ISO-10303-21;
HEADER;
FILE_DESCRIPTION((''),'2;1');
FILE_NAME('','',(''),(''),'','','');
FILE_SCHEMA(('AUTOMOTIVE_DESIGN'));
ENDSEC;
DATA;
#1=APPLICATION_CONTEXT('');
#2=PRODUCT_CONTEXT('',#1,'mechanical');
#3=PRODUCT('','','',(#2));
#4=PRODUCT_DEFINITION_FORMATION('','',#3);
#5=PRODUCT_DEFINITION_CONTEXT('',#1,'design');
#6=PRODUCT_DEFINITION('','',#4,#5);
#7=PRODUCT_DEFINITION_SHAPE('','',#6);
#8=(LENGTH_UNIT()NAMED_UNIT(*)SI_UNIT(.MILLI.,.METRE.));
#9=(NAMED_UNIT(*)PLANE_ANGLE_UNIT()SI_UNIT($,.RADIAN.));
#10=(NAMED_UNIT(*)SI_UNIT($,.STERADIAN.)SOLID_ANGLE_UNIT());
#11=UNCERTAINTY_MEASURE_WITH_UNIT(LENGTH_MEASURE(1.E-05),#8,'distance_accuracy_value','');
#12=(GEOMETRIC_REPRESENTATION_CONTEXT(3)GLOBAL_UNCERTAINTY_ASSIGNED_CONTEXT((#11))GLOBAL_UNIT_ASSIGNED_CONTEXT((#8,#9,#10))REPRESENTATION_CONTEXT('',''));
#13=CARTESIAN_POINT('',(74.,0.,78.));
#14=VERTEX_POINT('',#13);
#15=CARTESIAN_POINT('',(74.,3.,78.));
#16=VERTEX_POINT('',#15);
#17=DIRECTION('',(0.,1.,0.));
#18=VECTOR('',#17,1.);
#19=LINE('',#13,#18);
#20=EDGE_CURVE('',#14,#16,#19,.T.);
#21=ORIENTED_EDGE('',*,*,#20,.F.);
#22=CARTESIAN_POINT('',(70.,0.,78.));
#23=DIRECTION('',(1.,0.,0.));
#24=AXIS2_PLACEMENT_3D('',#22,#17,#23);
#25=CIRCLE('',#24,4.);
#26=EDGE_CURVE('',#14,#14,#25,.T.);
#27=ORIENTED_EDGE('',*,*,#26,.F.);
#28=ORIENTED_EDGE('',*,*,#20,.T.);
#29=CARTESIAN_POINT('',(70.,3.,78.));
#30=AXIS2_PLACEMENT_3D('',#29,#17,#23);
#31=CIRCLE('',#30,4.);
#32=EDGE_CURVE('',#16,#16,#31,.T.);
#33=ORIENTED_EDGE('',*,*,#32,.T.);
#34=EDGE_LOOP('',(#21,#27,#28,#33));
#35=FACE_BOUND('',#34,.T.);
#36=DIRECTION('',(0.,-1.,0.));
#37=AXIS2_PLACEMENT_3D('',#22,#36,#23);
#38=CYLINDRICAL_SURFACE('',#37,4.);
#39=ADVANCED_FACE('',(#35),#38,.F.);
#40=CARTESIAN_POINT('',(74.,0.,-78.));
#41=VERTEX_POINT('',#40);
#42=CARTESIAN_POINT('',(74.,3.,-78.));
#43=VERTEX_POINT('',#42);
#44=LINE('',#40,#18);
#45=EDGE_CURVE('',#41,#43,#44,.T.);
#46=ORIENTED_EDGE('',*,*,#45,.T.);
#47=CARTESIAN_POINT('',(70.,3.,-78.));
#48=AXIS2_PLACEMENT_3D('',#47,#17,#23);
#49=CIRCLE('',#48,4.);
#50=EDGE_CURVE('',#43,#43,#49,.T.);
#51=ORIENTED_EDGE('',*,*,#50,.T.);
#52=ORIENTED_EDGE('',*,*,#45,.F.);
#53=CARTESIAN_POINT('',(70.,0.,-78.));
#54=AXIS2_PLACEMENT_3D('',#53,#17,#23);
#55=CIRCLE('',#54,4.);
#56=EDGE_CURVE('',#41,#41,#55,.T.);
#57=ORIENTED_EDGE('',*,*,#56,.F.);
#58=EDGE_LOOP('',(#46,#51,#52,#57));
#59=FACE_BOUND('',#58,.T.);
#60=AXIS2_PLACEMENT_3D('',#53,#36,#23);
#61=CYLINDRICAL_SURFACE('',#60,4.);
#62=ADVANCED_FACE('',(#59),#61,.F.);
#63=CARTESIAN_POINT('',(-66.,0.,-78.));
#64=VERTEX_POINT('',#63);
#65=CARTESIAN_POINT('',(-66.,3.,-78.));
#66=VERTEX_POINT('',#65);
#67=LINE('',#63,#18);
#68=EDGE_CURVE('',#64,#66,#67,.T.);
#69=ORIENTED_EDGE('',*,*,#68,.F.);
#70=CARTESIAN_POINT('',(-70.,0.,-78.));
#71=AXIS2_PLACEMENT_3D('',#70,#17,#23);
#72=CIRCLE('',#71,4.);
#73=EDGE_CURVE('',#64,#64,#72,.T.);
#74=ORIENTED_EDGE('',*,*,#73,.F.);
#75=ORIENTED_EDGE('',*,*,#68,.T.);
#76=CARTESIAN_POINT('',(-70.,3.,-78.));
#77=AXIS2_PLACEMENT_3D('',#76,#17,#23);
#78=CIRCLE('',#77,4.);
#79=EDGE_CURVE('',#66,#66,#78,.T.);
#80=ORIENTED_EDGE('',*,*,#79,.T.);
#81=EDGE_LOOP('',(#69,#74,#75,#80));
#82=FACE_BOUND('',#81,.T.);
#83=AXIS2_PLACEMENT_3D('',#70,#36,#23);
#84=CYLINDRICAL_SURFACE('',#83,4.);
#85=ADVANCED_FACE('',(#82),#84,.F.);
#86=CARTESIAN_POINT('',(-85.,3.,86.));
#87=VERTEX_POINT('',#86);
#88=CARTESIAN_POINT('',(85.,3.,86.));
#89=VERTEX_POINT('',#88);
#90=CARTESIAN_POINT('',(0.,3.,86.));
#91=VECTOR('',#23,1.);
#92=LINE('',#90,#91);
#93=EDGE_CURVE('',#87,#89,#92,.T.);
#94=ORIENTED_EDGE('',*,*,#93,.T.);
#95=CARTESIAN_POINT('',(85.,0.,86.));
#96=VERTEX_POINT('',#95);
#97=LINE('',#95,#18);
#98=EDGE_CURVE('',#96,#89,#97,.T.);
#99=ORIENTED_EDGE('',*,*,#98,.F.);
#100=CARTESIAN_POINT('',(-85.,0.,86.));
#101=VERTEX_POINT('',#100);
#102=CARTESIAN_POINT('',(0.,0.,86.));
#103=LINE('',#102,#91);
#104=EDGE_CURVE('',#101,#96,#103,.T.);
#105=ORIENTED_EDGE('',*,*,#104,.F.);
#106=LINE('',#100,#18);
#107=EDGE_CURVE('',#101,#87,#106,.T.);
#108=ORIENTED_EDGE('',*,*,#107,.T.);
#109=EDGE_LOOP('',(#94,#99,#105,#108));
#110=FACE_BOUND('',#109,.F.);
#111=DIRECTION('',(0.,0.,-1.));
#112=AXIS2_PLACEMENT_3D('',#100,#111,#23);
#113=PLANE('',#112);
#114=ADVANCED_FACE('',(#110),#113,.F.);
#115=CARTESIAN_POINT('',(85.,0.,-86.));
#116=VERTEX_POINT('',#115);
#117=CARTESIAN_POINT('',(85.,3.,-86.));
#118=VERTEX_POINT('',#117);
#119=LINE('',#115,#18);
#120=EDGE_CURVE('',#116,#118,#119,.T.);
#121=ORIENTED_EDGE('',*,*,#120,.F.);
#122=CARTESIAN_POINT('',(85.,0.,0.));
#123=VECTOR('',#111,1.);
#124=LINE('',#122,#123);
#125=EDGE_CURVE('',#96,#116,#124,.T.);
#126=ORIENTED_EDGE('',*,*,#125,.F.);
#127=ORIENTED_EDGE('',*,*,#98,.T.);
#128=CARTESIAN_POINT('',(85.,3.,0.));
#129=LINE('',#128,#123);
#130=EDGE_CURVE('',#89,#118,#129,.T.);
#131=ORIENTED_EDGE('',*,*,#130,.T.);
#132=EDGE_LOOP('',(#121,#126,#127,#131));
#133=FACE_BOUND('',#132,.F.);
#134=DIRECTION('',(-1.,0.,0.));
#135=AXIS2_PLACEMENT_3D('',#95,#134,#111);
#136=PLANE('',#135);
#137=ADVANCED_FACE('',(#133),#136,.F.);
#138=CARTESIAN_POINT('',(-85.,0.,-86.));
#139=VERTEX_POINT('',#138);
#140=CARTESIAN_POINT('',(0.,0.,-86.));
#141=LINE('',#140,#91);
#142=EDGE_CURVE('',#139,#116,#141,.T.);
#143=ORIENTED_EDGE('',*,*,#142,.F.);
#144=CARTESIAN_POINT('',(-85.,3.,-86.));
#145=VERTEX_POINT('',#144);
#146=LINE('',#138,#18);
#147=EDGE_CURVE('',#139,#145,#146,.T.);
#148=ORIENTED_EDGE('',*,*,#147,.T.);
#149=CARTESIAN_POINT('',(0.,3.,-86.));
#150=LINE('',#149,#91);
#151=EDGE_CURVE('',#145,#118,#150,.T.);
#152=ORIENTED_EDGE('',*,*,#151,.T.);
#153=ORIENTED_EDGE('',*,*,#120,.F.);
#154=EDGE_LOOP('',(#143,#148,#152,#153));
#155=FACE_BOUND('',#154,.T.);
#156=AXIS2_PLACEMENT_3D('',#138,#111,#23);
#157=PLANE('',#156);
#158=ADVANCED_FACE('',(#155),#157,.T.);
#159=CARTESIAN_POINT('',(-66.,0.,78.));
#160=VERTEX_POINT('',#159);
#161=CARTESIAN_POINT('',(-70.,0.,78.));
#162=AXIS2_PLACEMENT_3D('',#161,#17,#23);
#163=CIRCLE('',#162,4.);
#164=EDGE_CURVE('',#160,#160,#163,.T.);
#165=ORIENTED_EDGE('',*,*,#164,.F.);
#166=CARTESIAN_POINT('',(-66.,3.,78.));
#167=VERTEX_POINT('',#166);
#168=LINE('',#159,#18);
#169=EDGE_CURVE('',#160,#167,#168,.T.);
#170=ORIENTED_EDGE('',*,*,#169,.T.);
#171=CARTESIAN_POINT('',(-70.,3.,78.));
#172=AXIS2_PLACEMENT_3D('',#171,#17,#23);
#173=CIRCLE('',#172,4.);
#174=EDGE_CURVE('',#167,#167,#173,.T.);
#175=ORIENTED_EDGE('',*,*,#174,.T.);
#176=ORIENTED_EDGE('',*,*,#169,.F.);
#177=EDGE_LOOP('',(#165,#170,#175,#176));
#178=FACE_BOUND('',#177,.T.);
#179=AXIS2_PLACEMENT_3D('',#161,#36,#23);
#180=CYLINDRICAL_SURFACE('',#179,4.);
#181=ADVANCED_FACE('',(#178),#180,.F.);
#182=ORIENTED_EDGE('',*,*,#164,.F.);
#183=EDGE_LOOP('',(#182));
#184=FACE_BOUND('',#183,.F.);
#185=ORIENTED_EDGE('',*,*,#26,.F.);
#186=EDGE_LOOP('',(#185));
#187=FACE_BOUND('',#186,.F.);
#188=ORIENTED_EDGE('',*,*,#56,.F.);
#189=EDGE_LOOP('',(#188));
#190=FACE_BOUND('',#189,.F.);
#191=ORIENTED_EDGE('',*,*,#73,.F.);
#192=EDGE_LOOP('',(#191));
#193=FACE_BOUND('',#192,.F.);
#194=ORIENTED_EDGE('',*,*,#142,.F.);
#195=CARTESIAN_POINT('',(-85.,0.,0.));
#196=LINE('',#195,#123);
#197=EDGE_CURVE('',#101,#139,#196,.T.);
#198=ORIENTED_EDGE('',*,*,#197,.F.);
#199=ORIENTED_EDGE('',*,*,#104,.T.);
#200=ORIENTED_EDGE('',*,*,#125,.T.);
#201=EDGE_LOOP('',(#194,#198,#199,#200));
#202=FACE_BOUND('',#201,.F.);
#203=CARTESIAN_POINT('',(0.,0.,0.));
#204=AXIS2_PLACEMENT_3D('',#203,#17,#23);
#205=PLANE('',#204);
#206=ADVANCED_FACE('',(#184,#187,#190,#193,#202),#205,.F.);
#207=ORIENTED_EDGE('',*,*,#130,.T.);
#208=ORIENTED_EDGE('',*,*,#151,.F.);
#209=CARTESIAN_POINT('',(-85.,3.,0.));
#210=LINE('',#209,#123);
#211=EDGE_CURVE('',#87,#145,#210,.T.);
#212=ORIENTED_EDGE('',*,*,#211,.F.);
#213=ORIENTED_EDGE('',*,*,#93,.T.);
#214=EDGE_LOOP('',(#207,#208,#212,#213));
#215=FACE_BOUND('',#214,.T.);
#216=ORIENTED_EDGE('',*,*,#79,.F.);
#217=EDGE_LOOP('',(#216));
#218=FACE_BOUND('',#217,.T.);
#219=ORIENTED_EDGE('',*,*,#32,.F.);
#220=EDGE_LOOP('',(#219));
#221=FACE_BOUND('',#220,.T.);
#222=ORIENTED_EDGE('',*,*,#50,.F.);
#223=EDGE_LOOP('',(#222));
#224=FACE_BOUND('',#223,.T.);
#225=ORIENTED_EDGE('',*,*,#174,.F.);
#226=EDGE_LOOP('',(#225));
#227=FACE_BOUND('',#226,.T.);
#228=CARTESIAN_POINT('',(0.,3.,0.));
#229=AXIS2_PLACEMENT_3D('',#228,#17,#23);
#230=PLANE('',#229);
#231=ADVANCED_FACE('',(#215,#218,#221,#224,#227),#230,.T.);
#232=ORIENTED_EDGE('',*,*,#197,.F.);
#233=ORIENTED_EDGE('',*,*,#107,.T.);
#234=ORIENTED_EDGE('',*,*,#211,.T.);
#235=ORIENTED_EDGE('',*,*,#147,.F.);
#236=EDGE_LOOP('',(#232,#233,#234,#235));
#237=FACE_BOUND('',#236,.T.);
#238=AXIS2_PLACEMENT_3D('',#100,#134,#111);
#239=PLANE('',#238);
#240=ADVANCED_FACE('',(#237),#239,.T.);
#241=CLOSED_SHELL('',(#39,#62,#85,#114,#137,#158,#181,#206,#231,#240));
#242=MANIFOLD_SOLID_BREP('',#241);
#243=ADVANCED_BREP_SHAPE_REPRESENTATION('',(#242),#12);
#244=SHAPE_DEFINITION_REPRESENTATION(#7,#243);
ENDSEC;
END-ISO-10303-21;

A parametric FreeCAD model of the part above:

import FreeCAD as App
import Part
import Sketcher

V = App.Vector
Q = App.Units.Quantity


def add_polygon(sketch, points):
    """Adds a closed chain of lines whose ends are joined by coincident constraints."""
    first, n = sketch.GeometryCount, len(points)
    for a, b in zip(points, points[1:] + points[:1]):
        sketch.addGeometry(Part.LineSegment(App.Vector(*a, 0), App.Vector(*b, 0)), False)
    for i in range(n):
        sketch.addConstraint(Sketcher.Constraint("Coincident", first + i, 2, first + (i + 1) % n, 1))

doc = App.newDocument("Part")
body = doc.addObject("PartDesign::Body", "Body")

sketch1 = body.newObject("Sketcher::SketchObject", "Sketch")
sketch1.AttachmentSupport = (doc.getObject("XZ_Plane"), [""])
sketch1.MapMode = "FlatFace"
add_polygon(sketch1, [(-85, -86), (-85, 86), (85, 86), (85, -86)])
sketch1.addGeometry(Part.Circle(V(-70, 78, 0), V(0, 0, 1), 4), False)
sketch1.addGeometry(Part.Circle(V(70, 78, 0), V(0, 0, 1), 4), False)
sketch1.addGeometry(Part.Circle(V(-70, -78, 0), V(0, 0, 1), 4), False)
sketch1.addGeometry(Part.Circle(V(70, -78, 0), V(0, 0, 1), 4), False)
sketch1.addConstraint([
    Sketcher.Constraint("Vertical", 0),
    Sketcher.Constraint("Horizontal", 1),
    Sketcher.Constraint("Vertical", 2),
    Sketcher.Constraint("Horizontal", 3),
    Sketcher.Constraint("Equal", 4, 5),
    Sketcher.Constraint("Equal", 5, 6),
    Sketcher.Constraint("Equal", 6, 7),
    Sketcher.Constraint("Symmetric", 5, 3, 6, 3, -1, 1),
    Sketcher.Constraint("Symmetric", 4, 3, 7, 3, -1, 1),
    Sketcher.Constraint("Symmetric", 0, 2, 2, 2, -1, 1),
    Sketcher.Constraint("Symmetric", 4, 3, 5, 3, -2),
    Sketcher.Constraint("Diameter", 4, Q("8 mm")),
    Sketcher.Constraint("DistanceX", 1, 1, 1, 2, Q("170 mm")),
    Sketcher.Constraint("DistanceY", 0, 1, 0, 2, Q("172 mm")),
    Sketcher.Constraint("DistanceX", 4, 3, -1, 1, Q("70 mm")),
    Sketcher.Constraint("DistanceY", -1, 1, 4, 3, Q("78 mm")),
])
pad1 = body.newObject("PartDesign::Pad", "Pad")
pad1.Profile = sketch1
pad1.Length = 3
pad1.Reversed = True

doc.recompute()
